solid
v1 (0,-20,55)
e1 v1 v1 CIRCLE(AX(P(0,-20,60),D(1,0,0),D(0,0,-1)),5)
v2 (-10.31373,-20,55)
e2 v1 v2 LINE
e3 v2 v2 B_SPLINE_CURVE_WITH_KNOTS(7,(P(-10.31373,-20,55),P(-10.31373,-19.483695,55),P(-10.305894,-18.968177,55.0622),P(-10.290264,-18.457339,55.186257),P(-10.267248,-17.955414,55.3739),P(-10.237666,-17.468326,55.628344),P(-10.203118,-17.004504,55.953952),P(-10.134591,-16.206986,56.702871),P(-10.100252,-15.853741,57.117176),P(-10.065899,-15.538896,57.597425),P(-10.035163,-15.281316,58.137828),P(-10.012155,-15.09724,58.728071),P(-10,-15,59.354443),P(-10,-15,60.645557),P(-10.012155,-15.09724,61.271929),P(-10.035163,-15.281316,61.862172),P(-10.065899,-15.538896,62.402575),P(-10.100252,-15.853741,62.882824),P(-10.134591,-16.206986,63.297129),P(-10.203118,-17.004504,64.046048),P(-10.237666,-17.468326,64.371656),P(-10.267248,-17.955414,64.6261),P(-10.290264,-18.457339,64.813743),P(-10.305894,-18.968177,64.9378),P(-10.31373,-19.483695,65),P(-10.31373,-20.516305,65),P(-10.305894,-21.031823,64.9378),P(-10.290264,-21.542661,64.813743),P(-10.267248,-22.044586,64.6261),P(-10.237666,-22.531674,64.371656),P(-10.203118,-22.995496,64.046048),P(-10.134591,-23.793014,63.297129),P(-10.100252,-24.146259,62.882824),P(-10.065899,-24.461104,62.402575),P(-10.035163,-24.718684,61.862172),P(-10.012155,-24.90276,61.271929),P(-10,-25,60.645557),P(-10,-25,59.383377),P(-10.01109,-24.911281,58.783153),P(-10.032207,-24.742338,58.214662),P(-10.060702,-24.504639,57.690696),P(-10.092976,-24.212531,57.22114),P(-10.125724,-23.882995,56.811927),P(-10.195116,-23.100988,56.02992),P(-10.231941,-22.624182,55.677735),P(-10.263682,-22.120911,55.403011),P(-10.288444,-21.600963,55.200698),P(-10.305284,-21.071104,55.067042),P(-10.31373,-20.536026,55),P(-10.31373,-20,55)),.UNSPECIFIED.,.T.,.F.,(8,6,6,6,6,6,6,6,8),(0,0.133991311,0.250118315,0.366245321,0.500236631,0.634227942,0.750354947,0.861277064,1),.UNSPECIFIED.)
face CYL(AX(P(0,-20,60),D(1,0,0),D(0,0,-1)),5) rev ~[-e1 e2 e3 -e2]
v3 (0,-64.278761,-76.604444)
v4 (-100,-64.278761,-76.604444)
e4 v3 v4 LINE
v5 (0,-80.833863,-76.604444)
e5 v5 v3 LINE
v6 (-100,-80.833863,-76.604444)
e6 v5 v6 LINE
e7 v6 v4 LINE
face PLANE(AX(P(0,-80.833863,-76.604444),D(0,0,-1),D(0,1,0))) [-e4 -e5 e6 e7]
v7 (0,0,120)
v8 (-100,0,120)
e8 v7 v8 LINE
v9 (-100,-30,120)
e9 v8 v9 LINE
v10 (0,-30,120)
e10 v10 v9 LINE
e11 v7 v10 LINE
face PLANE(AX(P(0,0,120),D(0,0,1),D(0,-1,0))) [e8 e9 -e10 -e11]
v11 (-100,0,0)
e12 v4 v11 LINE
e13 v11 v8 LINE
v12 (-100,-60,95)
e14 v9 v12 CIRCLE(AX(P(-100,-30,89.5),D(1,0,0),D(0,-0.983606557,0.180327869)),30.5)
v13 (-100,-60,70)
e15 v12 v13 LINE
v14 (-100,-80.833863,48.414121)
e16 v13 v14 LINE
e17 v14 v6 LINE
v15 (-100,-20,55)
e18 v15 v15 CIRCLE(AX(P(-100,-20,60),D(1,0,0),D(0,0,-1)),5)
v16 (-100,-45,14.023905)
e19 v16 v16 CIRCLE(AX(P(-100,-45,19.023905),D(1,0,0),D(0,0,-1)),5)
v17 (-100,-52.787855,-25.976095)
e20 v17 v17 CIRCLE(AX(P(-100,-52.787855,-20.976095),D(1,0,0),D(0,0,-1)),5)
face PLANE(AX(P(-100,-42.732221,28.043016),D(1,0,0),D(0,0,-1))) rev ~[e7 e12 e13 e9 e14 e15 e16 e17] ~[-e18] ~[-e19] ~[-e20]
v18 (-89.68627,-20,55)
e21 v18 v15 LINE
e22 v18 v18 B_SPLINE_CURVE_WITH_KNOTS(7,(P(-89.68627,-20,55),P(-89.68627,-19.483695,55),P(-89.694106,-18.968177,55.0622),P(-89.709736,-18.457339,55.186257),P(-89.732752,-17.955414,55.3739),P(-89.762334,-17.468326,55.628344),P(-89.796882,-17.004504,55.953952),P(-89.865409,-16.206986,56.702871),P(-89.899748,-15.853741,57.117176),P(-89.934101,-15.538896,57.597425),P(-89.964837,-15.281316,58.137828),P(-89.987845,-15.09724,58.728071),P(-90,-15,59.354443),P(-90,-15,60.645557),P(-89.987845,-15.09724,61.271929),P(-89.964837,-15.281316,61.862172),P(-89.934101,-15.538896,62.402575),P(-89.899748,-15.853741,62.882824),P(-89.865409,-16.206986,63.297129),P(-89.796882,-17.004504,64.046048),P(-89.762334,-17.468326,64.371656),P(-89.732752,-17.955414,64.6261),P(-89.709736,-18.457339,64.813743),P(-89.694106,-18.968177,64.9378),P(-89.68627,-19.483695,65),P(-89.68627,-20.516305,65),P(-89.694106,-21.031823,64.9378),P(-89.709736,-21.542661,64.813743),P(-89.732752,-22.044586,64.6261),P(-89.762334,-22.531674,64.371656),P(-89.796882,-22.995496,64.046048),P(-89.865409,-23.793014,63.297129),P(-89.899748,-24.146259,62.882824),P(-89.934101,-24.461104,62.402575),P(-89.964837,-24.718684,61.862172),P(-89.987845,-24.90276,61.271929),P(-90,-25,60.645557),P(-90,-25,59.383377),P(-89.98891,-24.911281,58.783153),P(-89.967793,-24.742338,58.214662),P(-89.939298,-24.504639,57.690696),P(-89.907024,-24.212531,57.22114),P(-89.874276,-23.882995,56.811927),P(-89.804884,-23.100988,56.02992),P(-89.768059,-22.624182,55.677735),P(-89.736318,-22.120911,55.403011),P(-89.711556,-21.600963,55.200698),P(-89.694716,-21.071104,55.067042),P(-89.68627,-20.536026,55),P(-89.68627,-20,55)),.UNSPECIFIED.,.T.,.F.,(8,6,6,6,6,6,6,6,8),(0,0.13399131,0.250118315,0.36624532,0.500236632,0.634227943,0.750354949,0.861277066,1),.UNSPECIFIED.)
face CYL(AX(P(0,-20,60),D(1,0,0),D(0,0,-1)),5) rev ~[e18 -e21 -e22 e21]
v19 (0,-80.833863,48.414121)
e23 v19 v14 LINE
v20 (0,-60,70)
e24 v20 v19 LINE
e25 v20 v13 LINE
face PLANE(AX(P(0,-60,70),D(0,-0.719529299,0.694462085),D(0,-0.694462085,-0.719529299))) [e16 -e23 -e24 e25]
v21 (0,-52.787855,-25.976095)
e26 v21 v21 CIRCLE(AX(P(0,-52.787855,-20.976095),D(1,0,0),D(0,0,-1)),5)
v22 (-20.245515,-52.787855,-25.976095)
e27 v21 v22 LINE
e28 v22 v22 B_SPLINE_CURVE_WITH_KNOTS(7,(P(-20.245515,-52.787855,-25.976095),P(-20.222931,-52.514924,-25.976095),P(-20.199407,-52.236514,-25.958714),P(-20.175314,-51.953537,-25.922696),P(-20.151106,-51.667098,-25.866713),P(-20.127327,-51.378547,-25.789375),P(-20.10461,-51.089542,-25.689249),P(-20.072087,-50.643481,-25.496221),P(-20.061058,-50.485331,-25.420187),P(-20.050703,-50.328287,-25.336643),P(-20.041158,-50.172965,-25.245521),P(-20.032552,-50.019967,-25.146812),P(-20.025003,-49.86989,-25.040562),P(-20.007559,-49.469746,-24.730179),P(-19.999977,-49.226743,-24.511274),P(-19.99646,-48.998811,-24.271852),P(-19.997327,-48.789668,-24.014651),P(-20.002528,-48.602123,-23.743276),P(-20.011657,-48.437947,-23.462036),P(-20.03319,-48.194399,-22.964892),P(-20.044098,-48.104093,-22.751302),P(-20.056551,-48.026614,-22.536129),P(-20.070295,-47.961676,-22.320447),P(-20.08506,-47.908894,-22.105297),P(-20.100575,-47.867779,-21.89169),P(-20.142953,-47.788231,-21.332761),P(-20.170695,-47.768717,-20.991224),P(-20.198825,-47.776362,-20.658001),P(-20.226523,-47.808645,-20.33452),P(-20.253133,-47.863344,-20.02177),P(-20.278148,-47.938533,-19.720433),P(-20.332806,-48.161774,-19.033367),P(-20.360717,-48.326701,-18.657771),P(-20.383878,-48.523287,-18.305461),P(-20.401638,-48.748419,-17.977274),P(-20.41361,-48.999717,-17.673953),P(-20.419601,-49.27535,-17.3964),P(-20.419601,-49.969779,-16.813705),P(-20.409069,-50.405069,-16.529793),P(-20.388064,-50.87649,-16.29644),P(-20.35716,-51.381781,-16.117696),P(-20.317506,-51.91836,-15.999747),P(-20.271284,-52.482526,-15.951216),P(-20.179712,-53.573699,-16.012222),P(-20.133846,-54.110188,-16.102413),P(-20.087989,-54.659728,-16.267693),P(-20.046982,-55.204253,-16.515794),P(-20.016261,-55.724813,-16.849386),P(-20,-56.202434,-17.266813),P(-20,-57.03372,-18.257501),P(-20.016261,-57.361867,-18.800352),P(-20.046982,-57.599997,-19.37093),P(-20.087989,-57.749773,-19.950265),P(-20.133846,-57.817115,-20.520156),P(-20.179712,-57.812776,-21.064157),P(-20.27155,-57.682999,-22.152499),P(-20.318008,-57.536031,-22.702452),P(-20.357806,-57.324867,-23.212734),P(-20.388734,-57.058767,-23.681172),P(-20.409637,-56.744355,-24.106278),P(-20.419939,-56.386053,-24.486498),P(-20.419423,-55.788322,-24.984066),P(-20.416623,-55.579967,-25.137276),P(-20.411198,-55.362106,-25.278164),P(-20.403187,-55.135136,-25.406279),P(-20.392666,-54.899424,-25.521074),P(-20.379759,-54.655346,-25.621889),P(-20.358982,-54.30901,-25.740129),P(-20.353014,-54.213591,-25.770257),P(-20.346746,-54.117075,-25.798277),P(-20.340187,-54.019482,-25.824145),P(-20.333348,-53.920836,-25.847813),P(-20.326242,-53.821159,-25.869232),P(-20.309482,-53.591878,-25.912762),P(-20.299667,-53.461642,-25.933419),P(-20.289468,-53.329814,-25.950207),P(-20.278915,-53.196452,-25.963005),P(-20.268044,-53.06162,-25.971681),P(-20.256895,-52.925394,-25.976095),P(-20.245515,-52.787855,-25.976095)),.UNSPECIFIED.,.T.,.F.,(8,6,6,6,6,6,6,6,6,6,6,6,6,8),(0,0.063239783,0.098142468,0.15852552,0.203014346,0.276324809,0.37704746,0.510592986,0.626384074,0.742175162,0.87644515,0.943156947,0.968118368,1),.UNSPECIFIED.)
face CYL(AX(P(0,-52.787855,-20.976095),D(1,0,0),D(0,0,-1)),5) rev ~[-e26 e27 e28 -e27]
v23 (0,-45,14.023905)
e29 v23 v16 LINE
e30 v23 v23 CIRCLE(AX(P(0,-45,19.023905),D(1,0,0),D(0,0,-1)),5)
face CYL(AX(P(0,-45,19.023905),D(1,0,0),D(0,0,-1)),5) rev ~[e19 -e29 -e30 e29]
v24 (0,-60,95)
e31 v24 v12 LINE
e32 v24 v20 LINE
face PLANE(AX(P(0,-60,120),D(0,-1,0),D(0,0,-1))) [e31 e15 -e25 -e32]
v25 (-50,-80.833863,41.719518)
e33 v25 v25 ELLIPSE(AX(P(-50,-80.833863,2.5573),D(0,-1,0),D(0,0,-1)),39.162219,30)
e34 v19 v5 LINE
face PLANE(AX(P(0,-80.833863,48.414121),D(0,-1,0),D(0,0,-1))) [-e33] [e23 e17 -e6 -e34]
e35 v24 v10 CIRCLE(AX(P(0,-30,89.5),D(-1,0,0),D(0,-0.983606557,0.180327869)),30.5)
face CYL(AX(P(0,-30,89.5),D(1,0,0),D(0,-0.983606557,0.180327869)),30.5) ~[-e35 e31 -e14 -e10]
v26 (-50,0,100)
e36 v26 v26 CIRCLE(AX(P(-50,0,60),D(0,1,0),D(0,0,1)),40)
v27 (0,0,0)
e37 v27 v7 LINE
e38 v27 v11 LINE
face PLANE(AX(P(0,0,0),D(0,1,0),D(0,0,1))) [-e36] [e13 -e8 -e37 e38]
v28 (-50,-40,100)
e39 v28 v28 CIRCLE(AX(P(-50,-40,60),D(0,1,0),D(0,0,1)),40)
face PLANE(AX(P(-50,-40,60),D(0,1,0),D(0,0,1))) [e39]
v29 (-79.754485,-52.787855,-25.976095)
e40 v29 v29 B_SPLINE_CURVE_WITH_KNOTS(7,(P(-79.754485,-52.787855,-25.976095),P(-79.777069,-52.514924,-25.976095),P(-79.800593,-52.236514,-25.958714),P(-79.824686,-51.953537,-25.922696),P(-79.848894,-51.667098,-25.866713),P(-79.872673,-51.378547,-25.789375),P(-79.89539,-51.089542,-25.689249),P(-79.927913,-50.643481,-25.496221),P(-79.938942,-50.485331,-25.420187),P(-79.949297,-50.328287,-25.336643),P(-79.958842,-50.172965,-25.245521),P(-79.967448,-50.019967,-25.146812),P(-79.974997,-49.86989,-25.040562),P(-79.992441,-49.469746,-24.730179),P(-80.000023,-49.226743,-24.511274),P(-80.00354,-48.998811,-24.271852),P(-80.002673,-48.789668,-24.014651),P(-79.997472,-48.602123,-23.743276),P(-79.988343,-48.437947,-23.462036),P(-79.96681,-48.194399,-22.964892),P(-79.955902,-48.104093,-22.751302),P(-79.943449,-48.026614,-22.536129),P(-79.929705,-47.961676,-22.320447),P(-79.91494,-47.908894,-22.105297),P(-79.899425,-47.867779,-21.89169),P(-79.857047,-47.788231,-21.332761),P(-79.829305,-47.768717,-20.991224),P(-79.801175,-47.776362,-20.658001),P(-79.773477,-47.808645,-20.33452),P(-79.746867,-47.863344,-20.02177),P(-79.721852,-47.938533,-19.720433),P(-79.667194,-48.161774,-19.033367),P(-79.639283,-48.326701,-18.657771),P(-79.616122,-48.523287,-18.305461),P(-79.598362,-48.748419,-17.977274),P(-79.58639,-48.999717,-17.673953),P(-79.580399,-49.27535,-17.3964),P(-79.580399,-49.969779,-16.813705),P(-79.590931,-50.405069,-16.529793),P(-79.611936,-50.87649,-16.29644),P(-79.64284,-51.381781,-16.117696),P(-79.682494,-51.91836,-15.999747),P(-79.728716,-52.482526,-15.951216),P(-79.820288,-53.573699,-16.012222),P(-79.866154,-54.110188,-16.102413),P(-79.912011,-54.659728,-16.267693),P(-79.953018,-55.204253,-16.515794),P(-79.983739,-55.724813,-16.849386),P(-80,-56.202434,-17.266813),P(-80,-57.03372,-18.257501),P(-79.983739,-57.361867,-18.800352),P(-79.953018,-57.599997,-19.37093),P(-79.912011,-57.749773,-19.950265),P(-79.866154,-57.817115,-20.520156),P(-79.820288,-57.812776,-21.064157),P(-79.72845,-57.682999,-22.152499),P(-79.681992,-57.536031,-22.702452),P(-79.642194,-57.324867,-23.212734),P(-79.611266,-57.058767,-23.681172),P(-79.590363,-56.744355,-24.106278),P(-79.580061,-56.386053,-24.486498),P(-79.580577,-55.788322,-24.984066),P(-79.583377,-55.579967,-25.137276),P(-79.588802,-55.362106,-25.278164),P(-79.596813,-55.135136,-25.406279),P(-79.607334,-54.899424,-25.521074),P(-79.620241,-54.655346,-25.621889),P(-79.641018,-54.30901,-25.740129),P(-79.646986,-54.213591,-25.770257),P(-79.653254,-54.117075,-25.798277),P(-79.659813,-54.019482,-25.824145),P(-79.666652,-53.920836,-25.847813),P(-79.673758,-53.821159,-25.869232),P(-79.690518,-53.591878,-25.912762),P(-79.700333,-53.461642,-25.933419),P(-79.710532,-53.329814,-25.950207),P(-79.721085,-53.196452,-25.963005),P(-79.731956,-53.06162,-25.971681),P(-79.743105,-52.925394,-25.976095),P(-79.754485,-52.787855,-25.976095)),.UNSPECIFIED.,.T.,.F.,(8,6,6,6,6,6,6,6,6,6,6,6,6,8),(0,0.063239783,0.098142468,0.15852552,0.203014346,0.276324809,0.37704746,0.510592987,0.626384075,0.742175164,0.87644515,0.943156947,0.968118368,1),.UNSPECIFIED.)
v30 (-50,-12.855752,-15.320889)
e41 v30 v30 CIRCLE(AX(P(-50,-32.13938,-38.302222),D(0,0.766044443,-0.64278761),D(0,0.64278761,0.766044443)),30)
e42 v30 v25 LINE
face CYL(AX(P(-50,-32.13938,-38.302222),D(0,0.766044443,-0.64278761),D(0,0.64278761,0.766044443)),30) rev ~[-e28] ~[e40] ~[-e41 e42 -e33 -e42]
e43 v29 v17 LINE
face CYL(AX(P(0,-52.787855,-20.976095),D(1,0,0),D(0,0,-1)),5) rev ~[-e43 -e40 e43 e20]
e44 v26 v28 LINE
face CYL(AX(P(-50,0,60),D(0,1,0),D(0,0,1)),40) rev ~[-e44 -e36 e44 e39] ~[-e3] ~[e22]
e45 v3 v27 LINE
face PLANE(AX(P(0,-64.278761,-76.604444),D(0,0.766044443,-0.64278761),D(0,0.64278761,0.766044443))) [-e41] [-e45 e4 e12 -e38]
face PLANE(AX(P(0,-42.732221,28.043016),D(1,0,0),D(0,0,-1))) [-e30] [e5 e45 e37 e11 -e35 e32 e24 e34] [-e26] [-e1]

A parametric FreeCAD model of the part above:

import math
import FreeCAD as App
import Part
import Sketcher
Q = App.Units.Quantity


def add_polygon(sketch, points):
    """Adds a closed chain of lines whose ends are joined by coincident constraints."""
    first, n = sketch.GeometryCount, len(points)
    for a, b in zip(points, points[1:] + points[:1]):
        sketch.addGeometry(Part.LineSegment(App.Vector(*a, 0), App.Vector(*b, 0)), False)
    for i in range(n):
        sketch.addConstraint(Sketcher.Constraint("Coincident", first + i, 2, first + (i + 1) % n, 1))

doc = App.newDocument("Part")
body = doc.addObject("PartDesign::Body", "Body")

sketch1 = body.newObject("Sketcher::SketchObject", "Sketch")
sketch1.AttachmentSupport = (doc.getObject("YZ_Plane"), [""])
sketch1.MapMode = "FlatFace"
add_polygon(sketch1, [(0, 0), (0, 120), (-60, 120), (-60, 70), (-81, 48), (-81, -77), (-64, -77)])
sketch1.addConstraint([
    Sketcher.Constraint("Vertical", 0),
    Sketcher.Constraint("Horizontal", 1),
    Sketcher.Constraint("Vertical", 2),
    Sketcher.Constraint("Vertical", 4),
    Sketcher.Constraint("Horizontal", 5),
    Sketcher.Constraint("Coincident", 6, 2, -1, 1),
    Sketcher.Constraint("DistanceX", 1, 2, 1, 1, Q("60 mm")),
    Sketcher.Constraint("DistanceY", 0, 1, 0, 2, Q("120 mm")),
    Sketcher.Constraint("DistanceY", 2, 2, 2, 1, Q("50 mm")),
    Sketcher.Constraint("Angle", 6, Q("50 deg")),
    Sketcher.Constraint("Distance", 3, Q("30 mm")),
    Sketcher.Constraint("Distance", 6, Q("100 mm")),
    Sketcher.Constraint("DistanceX", 5, 1, 5, 2, Q("16.555102 mm")),
])
pad1 = body.newObject("PartDesign::Pad", "Pad")
pad1.Profile = sketch1
pad1.Length = 100
pad1.Reversed = True

sketch2 = body.newObject("Sketcher::SketchObject", "Sketch001")
sketch2.AttachmentSupport = (doc.getObject("XZ_Plane"), [""])
sketch2.MapMode = "FlatFace"
sketch2.addGeometry(Part.Circle(App.Vector(-50, 60, 0), App.Vector(0, 0, 1), 40), False)
sketch2.addConstraint([
    Sketcher.Constraint("Diameter", 0, Q("80 mm")),
    Sketcher.Constraint("DistanceX", 0, 3, -1, 1, Q("50 mm")),
    Sketcher.Constraint("DistanceY", -1, 1, 0, 3, Q("60 mm")),
])
pocket1 = body.newObject("PartDesign::Pocket", "Pocket")
pocket1.Profile = sketch2
pocket1.Length = 40
pocket1.Reversed = True

sketch3 = body.newObject("Sketcher::SketchObject", "Sketch002")
sketch3.Placement = App.Placement(App.Vector(0, 0, 0), App.Rotation(App.Vector(1, 0, 0), App.Vector(0, -0.64278761, -0.766044443), App.Vector(0, 0.766044443, -0.64278761), "ZXY"))
sketch3.addGeometry(Part.Circle(App.Vector(-50, 50, 0), App.Vector(0, 0, 1), 30), False)
sketch3.addConstraint([
    Sketcher.Constraint("Diameter", 0, Q("60 mm")),
    Sketcher.Constraint("DistanceX", 0, 3, -1, 1, Q("50 mm")),
    Sketcher.Constraint("DistanceY", -1, 1, 0, 3, Q("50 mm")),
])
pocket2 = body.newObject("PartDesign::Pocket", "Pocket001")
pocket2.Profile = sketch3
pocket2.Type = "ThroughAll"

sketch4 = body.newObject("Sketcher::SketchObject", "Sketch003")
sketch4.AttachmentSupport = (doc.getObject("YZ_Plane"), [""])
sketch4.MapMode = "FlatFace"
sketch4.addGeometry(Part.Circle(App.Vector(-53, -21, 0), App.Vector(0, 0, 1), 5), False)
sketch4.addConstraint([
    Sketcher.Constraint("Diameter", 0, Q("10 mm")),
    Sketcher.Constraint("DistanceX", 0, 3, -1, 1, Q("52.787855 mm")),
    Sketcher.Constraint("DistanceY", 0, 3, -1, 1, Q("20.976095 mm")),
])
pocket3 = body.newObject("PartDesign::Pocket", "Pocket002")
pocket3.Profile = sketch4
pocket3.Type = "ThroughAll"

sketch5 = body.newObject("Sketcher::SketchObject", "Sketch004")
sketch5.AttachmentSupport = (doc.getObject("YZ_Plane"), [""])
sketch5.MapMode = "FlatFace"
sketch5.addGeometry(Part.Circle(App.Vector(-45, 19, 0), App.Vector(0, 0, 1), 5), False)
sketch5.addConstraint([
    Sketcher.Constraint("Diameter", 0, Q("10 mm")),
    Sketcher.Constraint("DistanceX", 0, 3, -1, 1, Q("45 mm")),
    Sketcher.Constraint("DistanceY", -1, 1, 0, 3, Q("19.023905 mm")),
])
pocket4 = body.newObject("PartDesign::Pocket", "Pocket003")
pocket4.Profile = sketch5
pocket4.Type = "ThroughAll"

sketch6 = body.newObject("Sketcher::SketchObject", "Sketch005")
sketch6.AttachmentSupport = (doc.getObject("YZ_Plane"), [""])
sketch6.MapMode = "FlatFace"
sketch6.addGeometry(Part.Circle(App.Vector(-20, 60, 0), App.Vector(0, 0, 1), 5), False)
sketch6.addConstraint([
    Sketcher.Constraint("Diameter", 0, Q("10 mm")),
    Sketcher.Constraint("DistanceX", 0, 3, -1, 1, Q("20 mm")),
    Sketcher.Constraint("DistanceY", -1, 1, 0, 3, Q("60 mm")),
])
pocket5 = body.newObject("PartDesign::Pocket", "Pocket004")
pocket5.Profile = sketch6
pocket5.Type = "ThroughAll"

sketch7 = body.newObject("Sketcher::SketchObject", "Sketch006")
sketch7.AttachmentSupport = (doc.getObject("YZ_Plane"), [""])
sketch7.MapMode = "FlatFace"
sketch7.addGeometry([
    Part.LineSegment(App.Vector(-30, 120, 0), App.Vector(-60, 120, 0)),
    Part.LineSegment(App.Vector(-60, 120, 0), App.Vector(-60, 95, 0)),
    Part.ArcOfCircle(Part.Circle(App.Vector(-30, 90, 0), App.Vector(0, 0, 1), 30), math.radians(90), math.radians(170)),
], False)
sketch7.addConstraint([
    Sketcher.Constraint("Coincident", 0, 2, 1, 1),
    Sketcher.Constraint("Coincident", 1, 2, 2, 2),
    Sketcher.Constraint("Tangent", 2, 1, 0, 1),
    Sketcher.Constraint("Horizontal", 0),
    Sketcher.Constraint("Vertical", 1),
    Sketcher.Constraint("Radius", 2, Q("30.5 mm")),
    Sketcher.Constraint("DistanceX", 0, 2, 0, 1, Q("30 mm")),
    Sketcher.Constraint("DistanceX", 2, 3, -1, 1, Q("30 mm")),
    Sketcher.Constraint("DistanceY", -1, 1, 0, 2, Q("120 mm")),
])
pocket6 = body.newObject("PartDesign::Pocket", "Pocket005")
pocket6.Profile = sketch7
pocket6.Type = "ThroughAll"

doc.recompute()
